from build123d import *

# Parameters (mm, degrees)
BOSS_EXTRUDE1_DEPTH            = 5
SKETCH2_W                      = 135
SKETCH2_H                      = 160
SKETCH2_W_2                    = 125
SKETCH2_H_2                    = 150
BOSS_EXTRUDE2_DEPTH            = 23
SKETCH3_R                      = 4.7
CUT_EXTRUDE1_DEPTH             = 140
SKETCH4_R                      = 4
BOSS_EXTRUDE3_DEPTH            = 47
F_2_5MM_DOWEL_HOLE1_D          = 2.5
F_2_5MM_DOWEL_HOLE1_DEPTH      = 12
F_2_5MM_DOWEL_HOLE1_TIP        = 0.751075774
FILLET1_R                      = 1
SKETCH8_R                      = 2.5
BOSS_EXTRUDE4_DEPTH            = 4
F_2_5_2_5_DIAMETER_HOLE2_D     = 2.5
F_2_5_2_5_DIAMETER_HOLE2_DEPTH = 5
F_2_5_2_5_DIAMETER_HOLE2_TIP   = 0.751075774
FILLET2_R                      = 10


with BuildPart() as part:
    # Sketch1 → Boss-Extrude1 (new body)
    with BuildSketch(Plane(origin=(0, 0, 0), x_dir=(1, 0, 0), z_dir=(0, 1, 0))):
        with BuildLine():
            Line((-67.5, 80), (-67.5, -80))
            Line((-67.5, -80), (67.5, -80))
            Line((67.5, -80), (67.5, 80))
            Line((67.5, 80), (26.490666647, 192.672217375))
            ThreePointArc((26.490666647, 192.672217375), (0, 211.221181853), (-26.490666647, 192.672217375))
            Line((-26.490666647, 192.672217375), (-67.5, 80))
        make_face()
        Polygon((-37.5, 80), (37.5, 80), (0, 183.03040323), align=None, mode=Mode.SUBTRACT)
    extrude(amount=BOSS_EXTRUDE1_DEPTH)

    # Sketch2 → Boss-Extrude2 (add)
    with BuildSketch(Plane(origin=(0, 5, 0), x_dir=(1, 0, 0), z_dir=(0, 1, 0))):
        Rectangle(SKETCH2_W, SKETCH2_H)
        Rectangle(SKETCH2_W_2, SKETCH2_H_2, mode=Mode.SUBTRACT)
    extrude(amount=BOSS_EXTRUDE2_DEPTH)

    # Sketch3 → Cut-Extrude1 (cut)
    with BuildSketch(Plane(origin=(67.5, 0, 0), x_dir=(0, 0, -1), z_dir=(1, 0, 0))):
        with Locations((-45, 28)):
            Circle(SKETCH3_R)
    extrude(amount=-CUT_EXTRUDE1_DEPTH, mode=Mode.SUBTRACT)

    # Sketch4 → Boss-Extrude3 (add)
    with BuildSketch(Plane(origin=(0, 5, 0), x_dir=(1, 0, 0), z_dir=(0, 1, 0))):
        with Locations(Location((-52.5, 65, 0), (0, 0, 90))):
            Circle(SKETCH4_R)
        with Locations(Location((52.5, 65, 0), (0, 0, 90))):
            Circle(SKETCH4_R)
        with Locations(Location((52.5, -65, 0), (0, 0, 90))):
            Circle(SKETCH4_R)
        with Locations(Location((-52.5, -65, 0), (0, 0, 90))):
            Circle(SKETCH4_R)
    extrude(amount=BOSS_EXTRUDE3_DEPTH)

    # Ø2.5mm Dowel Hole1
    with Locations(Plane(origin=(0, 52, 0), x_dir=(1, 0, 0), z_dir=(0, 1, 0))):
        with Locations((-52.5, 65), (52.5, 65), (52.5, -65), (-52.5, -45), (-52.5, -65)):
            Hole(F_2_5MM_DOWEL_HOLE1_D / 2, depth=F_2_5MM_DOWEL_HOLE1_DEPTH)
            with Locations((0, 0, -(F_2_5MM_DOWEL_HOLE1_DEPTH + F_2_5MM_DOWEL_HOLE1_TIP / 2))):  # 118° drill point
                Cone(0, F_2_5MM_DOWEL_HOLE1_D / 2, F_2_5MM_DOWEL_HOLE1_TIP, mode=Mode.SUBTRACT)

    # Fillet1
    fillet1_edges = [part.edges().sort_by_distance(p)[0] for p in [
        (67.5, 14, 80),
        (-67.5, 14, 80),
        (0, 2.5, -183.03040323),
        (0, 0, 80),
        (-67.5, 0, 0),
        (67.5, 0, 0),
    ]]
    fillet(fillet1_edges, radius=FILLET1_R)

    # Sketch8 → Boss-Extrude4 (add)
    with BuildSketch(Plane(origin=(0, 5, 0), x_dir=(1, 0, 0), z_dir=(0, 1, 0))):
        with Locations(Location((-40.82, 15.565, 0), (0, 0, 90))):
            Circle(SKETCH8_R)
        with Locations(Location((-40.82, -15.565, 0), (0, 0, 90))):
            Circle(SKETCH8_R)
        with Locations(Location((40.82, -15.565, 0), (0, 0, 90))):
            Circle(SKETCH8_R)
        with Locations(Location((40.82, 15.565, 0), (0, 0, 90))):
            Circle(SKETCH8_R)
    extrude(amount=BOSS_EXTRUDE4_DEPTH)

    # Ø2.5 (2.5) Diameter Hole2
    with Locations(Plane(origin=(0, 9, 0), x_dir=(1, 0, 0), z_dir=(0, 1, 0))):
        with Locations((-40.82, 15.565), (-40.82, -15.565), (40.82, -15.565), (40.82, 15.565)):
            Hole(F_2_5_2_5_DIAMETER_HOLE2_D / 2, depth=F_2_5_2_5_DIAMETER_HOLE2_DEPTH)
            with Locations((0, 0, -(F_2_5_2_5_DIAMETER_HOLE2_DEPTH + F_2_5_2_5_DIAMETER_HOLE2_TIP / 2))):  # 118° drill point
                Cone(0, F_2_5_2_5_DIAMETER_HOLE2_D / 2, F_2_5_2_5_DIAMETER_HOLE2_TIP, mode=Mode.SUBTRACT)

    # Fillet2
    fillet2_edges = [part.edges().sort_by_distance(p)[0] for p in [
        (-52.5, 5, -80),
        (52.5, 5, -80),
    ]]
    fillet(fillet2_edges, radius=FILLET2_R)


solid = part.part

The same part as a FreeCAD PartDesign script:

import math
import FreeCAD as App
import Part
import Sketcher
from FreeCAD import Vector
Q = App.Units.Quantity


def edges_at(feature, points):
    """Names of the edges that pass closest to the given points."""
    edges = feature.Shape.Edges
    near = lambda p: min(range(len(edges)), key=lambda i: edges[i].distToShape(Part.Vertex(*p))[0])
    return sorted({f"Edge{near(p) + 1}" for p in points})


def add_polygon(sketch, points):
    """Adds a closed chain of lines whose ends are joined by coincident constraints."""
    first, n = sketch.GeometryCount, len(points)
    for a, b in zip(points, points[1:] + points[:1]):
        sketch.addGeometry(Part.LineSegment(App.Vector(*a, 0), App.Vector(*b, 0)), False)
    for i in range(n):
        sketch.addConstraint(Sketcher.Constraint("Coincident", first + i, 2, first + (i + 1) % n, 1))

doc = App.newDocument("Part")
body = doc.addObject("PartDesign::Body", "Body")

sketch1 = doc.addObject("Sketcher::SketchObject", "Sketch")
body.addObject(sketch1)
sketch1.AttachmentSupport = (doc.XZ_Plane, [""])
sketch1.MapMode = "FlatFace"
sketch1.addGeometry(Part.LineSegment(Vector(-68, -80, 0), Vector(-68, 80, 0)), False)
sketch1.addGeometry(Part.LineSegment(Vector(-68, 80, 0), Vector(68, 80, 0)), False)
sketch1.addGeometry(Part.LineSegment(Vector(68, 80, 0), Vector(68, -80, 0)), False)
sketch1.addGeometry(Part.LineSegment(Vector(68, -80, 0), Vector(26, -193, 0)), False)
sketch1.addGeometry(Part.ArcOfCircle(Part.Circle(Vector(0, -183, 0), Vector(0, 0, 1), 28), math.radians(-160), math.radians(-20)), False)
sketch1.addGeometry(Part.LineSegment(Vector(-26, -193, 0), Vector(-68, -80, 0)), False)
add_polygon(sketch1, [(38, -80), (-38, -80), (0, -183)])
sketch1.addConstraint(Sketcher.Constraint("Coincident", 0, 2, 1, 1))
sketch1.addConstraint(Sketcher.Constraint("Coincident", 1, 2, 2, 1))
sketch1.addConstraint(Sketcher.Constraint("Coincident", 2, 2, 3, 1))
sketch1.addConstraint(Sketcher.Constraint("Tangent", 3, 2, 4, 2))
sketch1.addConstraint(Sketcher.Constraint("Tangent", 4, 1, 5, 1))
sketch1.addConstraint(Sketcher.Constraint("Coincident", 5, 2, 0, 1))
sketch1.addConstraint(Sketcher.Constraint("Vertical", 0))
sketch1.addConstraint(Sketcher.Constraint("Horizontal", 1))
sketch1.addConstraint(Sketcher.Constraint("Vertical", 2))
sketch1.addConstraint(Sketcher.Constraint("Horizontal", 6))
sketch1.addConstraint(Sketcher.Constraint("Coincident", 7, 2, 4, 3))
sketch1.addConstraint(Sketcher.Constraint("Symmetric", 0, 2, 2, 2, -1, 1))
sketch1.addConstraint(Sketcher.Constraint("Symmetric", 3, 2, 4, 1, -2))
sketch1.addConstraint(Sketcher.Constraint("Parallel", 5, 7))
sketch1.addConstraint(Sketcher.Constraint("Parallel", 3, 8))
sketch1.addConstraint(Sketcher.Constraint("Horizontal", 5, 2, 6, 2))
sketch1.addConstraint(Sketcher.Constraint("DistanceX", 1, 1, 1, 2, Q("135 mm")))
sketch1.addConstraint(Sketcher.Constraint("DistanceX", 6, 2, 6, 1, Q("75 mm")))
sketch1.addConstraint(Sketcher.Constraint("DistanceY", 0, 1, 0, 2, Q("160 mm")))
sketch1.addConstraint(Sketcher.Constraint("Angle", 3, Q("-110 deg")))
pad1 = doc.addObject("PartDesign::Pad", "Pad")
body.addObject(pad1)
pad1.Profile = sketch1
pad1.Length = 5
pad1.Reversed = True

sketch2 = doc.addObject("Sketcher::SketchObject", "Sketch001")
body.addObject(sketch2)
sketch2.AttachmentSupport = (doc.XZ_Plane, [""])
sketch2.MapMode = "FlatFace"
sketch2.AttachmentOffset = App.Placement(Vector(0, 0, -5), App.Rotation())
add_polygon(sketch2, [(-68, -80), (-68, 80), (68, 80), (68, -80)])
add_polygon(sketch2, [(62, 75), (-62, 75), (-62, -75), (62, -75)])
sketch2.addConstraint(Sketcher.Constraint("Vertical", 0))
sketch2.addConstraint(Sketcher.Constraint("Horizontal", 1))
sketch2.addConstraint(Sketcher.Constraint("Vertical", 2))
sketch2.addConstraint(Sketcher.Constraint("Horizontal", 3))
sketch2.addConstraint(Sketcher.Constraint("Horizontal", 4))
sketch2.addConstraint(Sketcher.Constraint("Vertical", 5))
sketch2.addConstraint(Sketcher.Constraint("Horizontal", 6))
sketch2.addConstraint(Sketcher.Constraint("Vertical", 7))
sketch2.addConstraint(Sketcher.Constraint("Symmetric", 0, 2, 2, 2, -1, 1))
sketch2.addConstraint(Sketcher.Constraint("Symmetric", 4, 2, 6, 2, -1, 1))
sketch2.addConstraint(Sketcher.Constraint("DistanceX", 1, 1, 1, 2, Q("135 mm")))
sketch2.addConstraint(Sketcher.Constraint("DistanceX", 4, 2, 4, 1, Q("125 mm")))
sketch2.addConstraint(Sketcher.Constraint("DistanceY", 0, 1, 0, 2, Q("160 mm")))
sketch2.addConstraint(Sketcher.Constraint("DistanceY", 5, 2, 5, 1, Q("150 mm")))
pad2 = doc.addObject("PartDesign::Pad", "Pad001")
body.addObject(pad2)
pad2.Profile = sketch2
pad2.Length = 23
pad2.Reversed = True

sketch3 = doc.addObject("Sketcher::SketchObject", "Sketch002")
body.addObject(sketch3)
sketch3.AttachmentSupport = (doc.YZ_Plane, [""])
sketch3.MapMode = "FlatFace"
sketch3.AttachmentOffset = App.Placement(Vector(0, 0, 67.5), App.Rotation())
sketch3.addGeometry(Part.Circle(Vector(28, 45, 0), Vector(0, 0, 1), 4.7), False)
sketch3.addConstraint(Sketcher.Constraint("Diameter", 0, Q("9.4 mm")))
sketch3.addConstraint(Sketcher.Constraint("DistanceX", -1, 1, 0, 3, Q("28 mm")))
sketch3.addConstraint(Sketcher.Constraint("DistanceY", -1, 1, 0, 3, Q("45 mm")))
pocket1 = doc.addObject("PartDesign::Pocket", "Pocket")
body.addObject(pocket1)
pocket1.Profile = sketch3
pocket1.Length = 140

sketch4 = doc.addObject("Sketcher::SketchObject", "Sketch003")
body.addObject(sketch4)
sketch4.AttachmentSupport = (doc.XZ_Plane, [""])
sketch4.MapMode = "FlatFace"
sketch4.AttachmentOffset = App.Placement(Vector(0, 0, -5), App.Rotation())
sketch4.addGeometry(Part.Circle(Vector(-52.5, -65, 0), Vector(0, 0, 1), 4), False)
sketch4.addGeometry(Part.Circle(Vector(52.5, -65, 0), Vector(0, 0, 1), 4), False)
sketch4.addGeometry(Part.Circle(Vector(52.5, 65, 0), Vector(0, 0, 1), 4), False)
sketch4.addGeometry(Part.Circle(Vector(-52.5, 65, 0), Vector(0, 0, 1), 4), False)
sketch4.addConstraint(Sketcher.Constraint("Equal", 0, 1))
sketch4.addConstraint(Sketcher.Constraint("Equal", 1, 2))
sketch4.addConstraint(Sketcher.Constraint("Equal", 2, 3))
sketch4.addConstraint(Sketcher.Constraint("Symmetric", 0, 3, 2, 3, -1, 1))
sketch4.addConstraint(Sketcher.Constraint("Symmetric", 1, 3, 3, 3, -1, 1))
sketch4.addConstraint(Sketcher.Constraint("Symmetric", 0, 3, 1, 3, -2))
sketch4.addConstraint(Sketcher.Constraint("Diameter", 0, Q("8 mm")))
sketch4.addConstraint(Sketcher.Constraint("DistanceY", 0, 3, -1, 1, Q("65 mm")))
sketch4.addConstraint(Sketcher.Constraint("DistanceX", 0, 3, 1, 3, Q("105 mm")))
pad3 = doc.addObject("PartDesign::Pad", "Pad002")
body.addObject(pad3)
pad3.Profile = sketch4
pad3.Length = 47
pad3.Reversed = True

sketch5 = doc.addObject("Sketcher::SketchObject", "Sketch004")
body.addObject(sketch5)
sketch5.AttachmentSupport = (doc.XZ_Plane, [""])
sketch5.MapMode = "FlatFace"
sketch5.AttachmentOffset = App.Placement(Vector(0, 0, -52), App.Rotation())
sketch5.addGeometry(Part.Circle(Vector(-52.5, -65, 0), Vector(0, 0, 1), 1.2), False)
sketch5.addGeometry(Part.Circle(Vector(52.5, -65, 0), Vector(0, 0, 1), 1.2), False)
sketch5.addGeometry(Part.Circle(Vector(52.5, 65, 0), Vector(0, 0, 1), 1.2), False)
sketch5.addGeometry(Part.Circle(Vector(-52.5, 45, 0), Vector(0, 0, 1), 1.2), False)
sketch5.addGeometry(Part.Circle(Vector(-52.5, 65, 0), Vector(0, 0, 1), 1.2), False)
sketch5.addConstraint(Sketcher.Constraint("Equal", 0, 1))
sketch5.addConstraint(Sketcher.Constraint("Equal", 1, 2))
sketch5.addConstraint(Sketcher.Constraint("Equal", 2, 3))
sketch5.addConstraint(Sketcher.Constraint("Equal", 3, 4))
sketch5.addConstraint(Sketcher.Constraint("Symmetric", 0, 3, 2, 3, -1, 1))
sketch5.addConstraint(Sketcher.Constraint("Symmetric", 1, 3, 4, 3, -1, 1))
sketch5.addConstraint(Sketcher.Constraint("Symmetric", 0, 3, 1, 3, -2))
sketch5.addConstraint(Sketcher.Constraint("Vertical", 0, 3, 3, 3))
sketch5.addConstraint(Sketcher.Constraint("Diameter", 0, Q("2.5 mm")))
sketch5.addConstraint(Sketcher.Constraint("DistanceY", 0, 3, -1, 1, Q("65 mm")))
sketch5.addConstraint(Sketcher.Constraint("DistanceY", -1, 1, 3, 3, Q("45 mm")))
sketch5.addConstraint(Sketcher.Constraint("DistanceX", 0, 3, 1, 3, Q("105 mm")))
doc.recompute()
hole = doc.addObject("PartDesign::Hole", "Hole")
body.addObject(hole)
hole.Profile = sketch5
hole.ThreadType = "None"
hole.Diameter = 2.5
hole.DepthType = "Dimension"
hole.Depth = 12
hole.DrillPoint = "Angled"
hole.DrillPointAngle = 118
hole.Reversed = True
doc.recompute()

fillet = doc.addObject("PartDesign::Fillet", "Fillet")
body.addObject(fillet)
fillet.Base = (hole, edges_at(hole, [
    (67.5, 14, 80),
    (-67.5, 14, 80),
    (0, 2.5, -183.03),
    (0, 0, 80),
    (-67.5, 0, 0),
    (67.5, 0, 0),
]))
fillet.Radius = 1

sketch6 = doc.addObject("Sketcher::SketchObject", "Sketch005")
body.addObject(sketch6)
sketch6.AttachmentSupport = (doc.XZ_Plane, [""])
sketch6.MapMode = "FlatFace"
sketch6.AttachmentOffset = App.Placement(Vector(0, 0, -5), App.Rotation())
sketch6.addGeometry(Part.Circle(Vector(-40.8, -15.6, 0), Vector(0, 0, 1), 2.5), False)
sketch6.addGeometry(Part.Circle(Vector(-40.8, 15.6, 0), Vector(0, 0, 1), 2.5), False)
sketch6.addGeometry(Part.Circle(Vector(40.8, 15.6, 0), Vector(0, 0, 1), 2.5), False)
sketch6.addGeometry(Part.Circle(Vector(40.8, -15.6, 0), Vector(0, 0, 1), 2.5), False)
sketch6.addConstraint(Sketcher.Constraint("Equal", 0, 1))
sketch6.addConstraint(Sketcher.Constraint("Equal", 1, 2))
sketch6.addConstraint(Sketcher.Constraint("Equal", 2, 3))
sketch6.addConstraint(Sketcher.Constraint("Symmetric", 0, 3, 2, 3, -1, 1))
sketch6.addConstraint(Sketcher.Constraint("Symmetric", 1, 3, 3, 3, -1, 1))
sketch6.addConstraint(Sketcher.Constraint("Symmetric", 1, 3, 2, 3, -2))
sketch6.addConstraint(Sketcher.Constraint("Diameter", 0, Q("5 mm")))
sketch6.addConstraint(Sketcher.Constraint("DistanceX", 0, 3, -1, 1, Q("40.82 mm")))
sketch6.addConstraint(Sketcher.Constraint("DistanceY", 0, 3, 1, 3, Q("31.13 mm")))
pad4 = doc.addObject("PartDesign::Pad", "Pad003")
body.addObject(pad4)
pad4.Profile = sketch6
pad4.Length = 4
pad4.Reversed = True

sketch7 = doc.addObject("Sketcher::SketchObject", "Sketch006")
body.addObject(sketch7)
sketch7.AttachmentSupport = (doc.XZ_Plane, [""])
sketch7.MapMode = "FlatFace"
sketch7.AttachmentOffset = App.Placement(Vector(0, 0, -9), App.Rotation())
sketch7.addGeometry(Part.Circle(Vector(-40.8, -15.6, 0), Vector(0, 0, 1), 1.2), False)
sketch7.addGeometry(Part.Circle(Vector(-40.8, 15.6, 0), Vector(0, 0, 1), 1.2), False)
sketch7.addGeometry(Part.Circle(Vector(40.8, 15.6, 0), Vector(0, 0, 1), 1.2), False)
sketch7.addGeometry(Part.Circle(Vector(40.8, -15.6, 0), Vector(0, 0, 1), 1.2), False)
sketch7.addConstraint(Sketcher.Constraint("Equal", 0, 1))
sketch7.addConstraint(Sketcher.Constraint("Equal", 1, 2))
sketch7.addConstraint(Sketcher.Constraint("Equal", 2, 3))
sketch7.addConstraint(Sketcher.Constraint("Symmetric", 0, 3, 2, 3, -1, 1))
sketch7.addConstraint(Sketcher.Constraint("Symmetric", 1, 3, 3, 3, -1, 1))
sketch7.addConstraint(Sketcher.Constraint("Symmetric", 1, 3, 2, 3, -2))
sketch7.addConstraint(Sketcher.Constraint("Diameter", 0, Q("2.5 mm")))
sketch7.addConstraint(Sketcher.Constraint("DistanceX", 0, 3, -1, 1, Q("40.82 mm")))
sketch7.addConstraint(Sketcher.Constraint("DistanceY", 0, 3, 1, 3, Q("31.13 mm")))
doc.recompute()
hole2 = doc.addObject("PartDesign::Hole", "Hole001")
body.addObject(hole2)
hole2.Profile = sketch7
hole2.ThreadType = "None"
hole2.Diameter = 2.5
hole2.DepthType = "Dimension"
hole2.Depth = 5
hole2.DrillPoint = "Angled"
hole2.DrillPointAngle = 118
hole2.Reversed = True
doc.recompute()

fillet2 = doc.addObject("PartDesign::Fillet", "Fillet001")
body.addObject(fillet2)
fillet2.Base = (hole2, edges_at(hole2, [(-52.5, 5, -80), (52.5, 5, -80)]))
fillet2.Radius = 10

doc.recompute()
